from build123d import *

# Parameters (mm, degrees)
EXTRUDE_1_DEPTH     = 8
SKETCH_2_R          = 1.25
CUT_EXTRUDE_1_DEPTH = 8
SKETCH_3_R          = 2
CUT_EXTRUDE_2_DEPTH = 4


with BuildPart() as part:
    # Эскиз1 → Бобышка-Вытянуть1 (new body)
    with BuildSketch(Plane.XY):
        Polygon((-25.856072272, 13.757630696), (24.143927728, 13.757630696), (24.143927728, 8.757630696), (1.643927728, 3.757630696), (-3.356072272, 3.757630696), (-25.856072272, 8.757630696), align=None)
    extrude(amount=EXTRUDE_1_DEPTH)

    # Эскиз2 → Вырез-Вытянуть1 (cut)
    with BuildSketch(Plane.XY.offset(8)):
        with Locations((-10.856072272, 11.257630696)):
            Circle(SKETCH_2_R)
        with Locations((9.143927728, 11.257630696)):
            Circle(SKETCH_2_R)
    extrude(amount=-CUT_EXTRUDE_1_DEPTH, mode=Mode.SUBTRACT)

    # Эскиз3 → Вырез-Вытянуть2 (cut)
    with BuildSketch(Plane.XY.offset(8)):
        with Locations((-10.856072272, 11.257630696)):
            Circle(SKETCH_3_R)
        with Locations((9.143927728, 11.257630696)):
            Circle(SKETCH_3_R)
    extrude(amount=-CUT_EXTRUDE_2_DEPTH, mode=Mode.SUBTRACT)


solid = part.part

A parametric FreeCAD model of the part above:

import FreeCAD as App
import Part
import Sketcher

V = App.Vector
Q = App.Units.Quantity

doc = App.newDocument("Part")
body = doc.addObject("PartDesign::Body", "Body")

# Sketch on XY plane
sketch1 = body.newObject("Sketcher::SketchObject", "Sketch")
sketch1.AttachmentSupport = (doc.getObject("XY_Plane"), [""])
sketch1.MapMode = "FlatFace"
sketch1.addGeometry([
    Part.LineSegment(V(24.143928, 13.757631, 0), V(-25.856072, 13.757631, 0)),  # 0
    Part.LineSegment(V(-25.856072, 13.757631, 0), V(-25.856072, 8.757631, 0)),  # 1
    Part.LineSegment(V(-25.856072, 8.757631, 0), V(-3.356072, 3.757631, 0)),  # 2
    Part.LineSegment(V(-3.356072, 3.757631, 0), V(1.643928, 3.757631, 0)),  # 3
    Part.LineSegment(V(1.643928, 3.757631, 0), V(24.143928, 8.757631, 0)),  # 4
    Part.LineSegment(V(24.143928, 8.757631, 0), V(24.143928, 13.757631, 0)),  # 5
], False)
sketch1.addConstraint([
    Sketcher.Constraint("Coincident", 0, 2, 1, 1),
    Sketcher.Constraint("Coincident", 1, 2, 2, 1),
    Sketcher.Constraint("Coincident", 2, 2, 3, 1),
    Sketcher.Constraint("Coincident", 3, 2, 4, 1),
    Sketcher.Constraint("Coincident", 4, 2, 5, 1),
    Sketcher.Constraint("Coincident", 5, 2, 0, 1),
    Sketcher.Constraint("Horizontal", 0),
    Sketcher.Constraint("Vertical", 1),
    Sketcher.Constraint("Horizontal", 3),
    Sketcher.Constraint("Vertical", 5),
    Sketcher.Constraint("Horizontal", 1, 2, 4, 2),
    Sketcher.Constraint("Equal", 3, 1),
    Sketcher.Constraint("Equal", 2, 4),
    Sketcher.Constraint("DistanceX", 0, 2, 0, 1, Q("50 mm")),
    Sketcher.Constraint("DistanceX", 3, 1, 3, 2, Q("5 mm")),
    Sketcher.Constraint("DistanceY", 2, 2, 1, 2, Q("5 mm")),
    Sketcher.Constraint("DistanceY", -1, 1, 0, 2, Q("13.757631 mm")),
    Sketcher.Constraint("DistanceX", 0, 2, -1, 1, Q("25.856072 mm")),
])
pad1 = body.newObject("PartDesign::Pad", "Pad")
pad1.Profile = sketch1
pad1.Length = 8

# Sketch on XY plane
sketch2 = body.newObject("Sketcher::SketchObject", "Sketch001")
sketch2.AttachmentSupport = (doc.getObject("XY_Plane"), [""])
sketch2.MapMode = "FlatFace"
sketch2.AttachmentOffset = App.Placement(V(0, 0, 8), App.Rotation())
sketch2.addGeometry([
    Part.Circle(V(-10.856072, 11.257631, 0), V(0, 0, 1), 1.25),
    Part.Circle(V(9.143928, 11.257631, 0), V(0, 0, 1), 1.25),
], False)
sketch2.addConstraint([
    Sketcher.Constraint("Equal", 0, 1),
    Sketcher.Constraint("Horizontal", 0, 3, 1, 3),
    Sketcher.Constraint("Diameter", 0, Q("2.5 mm")),
    Sketcher.Constraint("DistanceX", 0, 3, 1, 3, Q("20 mm")),
    Sketcher.Constraint("DistanceY", -1, 1, 0, 3, Q("11.257631 mm")),
    Sketcher.Constraint("DistanceX", 0, 3, -1, 1, Q("10.856072 mm")),
])
pocket1 = body.newObject("PartDesign::Pocket", "Pocket")
pocket1.Profile = sketch2
pocket1.Length = 8

# Sketch on XY plane
sketch3 = body.newObject("Sketcher::SketchObject", "Sketch002")
sketch3.AttachmentSupport = (doc.getObject("XY_Plane"), [""])
sketch3.MapMode = "FlatFace"
sketch3.AttachmentOffset = App.Placement(V(0, 0, 8), App.Rotation())
sketch3.addGeometry([
    Part.Circle(V(-10.856072, 11.257631, 0), V(0, 0, 1), 2),
    Part.Circle(V(9.143928, 11.257631, 0), V(0, 0, 1), 2),
], False)
sketch3.addConstraint([
    Sketcher.Constraint("Equal", 0, 1),
    Sketcher.Constraint("Horizontal", 0, 3, 1, 3),
    Sketcher.Constraint("Diameter", 0, Q("4 mm")),
    Sketcher.Constraint("DistanceX", 0, 3, 1, 3, Q("20 mm")),
    Sketcher.Constraint("DistanceY", -1, 1, 0, 3, Q("11.257631 mm")),
    Sketcher.Constraint("DistanceX", 0, 3, -1, 1, Q("10.856072 mm")),
])
pocket2 = body.newObject("PartDesign::Pocket", "Pocket001")
pocket2.Profile = sketch3
pocket2.Length = 4

doc.recompute()
